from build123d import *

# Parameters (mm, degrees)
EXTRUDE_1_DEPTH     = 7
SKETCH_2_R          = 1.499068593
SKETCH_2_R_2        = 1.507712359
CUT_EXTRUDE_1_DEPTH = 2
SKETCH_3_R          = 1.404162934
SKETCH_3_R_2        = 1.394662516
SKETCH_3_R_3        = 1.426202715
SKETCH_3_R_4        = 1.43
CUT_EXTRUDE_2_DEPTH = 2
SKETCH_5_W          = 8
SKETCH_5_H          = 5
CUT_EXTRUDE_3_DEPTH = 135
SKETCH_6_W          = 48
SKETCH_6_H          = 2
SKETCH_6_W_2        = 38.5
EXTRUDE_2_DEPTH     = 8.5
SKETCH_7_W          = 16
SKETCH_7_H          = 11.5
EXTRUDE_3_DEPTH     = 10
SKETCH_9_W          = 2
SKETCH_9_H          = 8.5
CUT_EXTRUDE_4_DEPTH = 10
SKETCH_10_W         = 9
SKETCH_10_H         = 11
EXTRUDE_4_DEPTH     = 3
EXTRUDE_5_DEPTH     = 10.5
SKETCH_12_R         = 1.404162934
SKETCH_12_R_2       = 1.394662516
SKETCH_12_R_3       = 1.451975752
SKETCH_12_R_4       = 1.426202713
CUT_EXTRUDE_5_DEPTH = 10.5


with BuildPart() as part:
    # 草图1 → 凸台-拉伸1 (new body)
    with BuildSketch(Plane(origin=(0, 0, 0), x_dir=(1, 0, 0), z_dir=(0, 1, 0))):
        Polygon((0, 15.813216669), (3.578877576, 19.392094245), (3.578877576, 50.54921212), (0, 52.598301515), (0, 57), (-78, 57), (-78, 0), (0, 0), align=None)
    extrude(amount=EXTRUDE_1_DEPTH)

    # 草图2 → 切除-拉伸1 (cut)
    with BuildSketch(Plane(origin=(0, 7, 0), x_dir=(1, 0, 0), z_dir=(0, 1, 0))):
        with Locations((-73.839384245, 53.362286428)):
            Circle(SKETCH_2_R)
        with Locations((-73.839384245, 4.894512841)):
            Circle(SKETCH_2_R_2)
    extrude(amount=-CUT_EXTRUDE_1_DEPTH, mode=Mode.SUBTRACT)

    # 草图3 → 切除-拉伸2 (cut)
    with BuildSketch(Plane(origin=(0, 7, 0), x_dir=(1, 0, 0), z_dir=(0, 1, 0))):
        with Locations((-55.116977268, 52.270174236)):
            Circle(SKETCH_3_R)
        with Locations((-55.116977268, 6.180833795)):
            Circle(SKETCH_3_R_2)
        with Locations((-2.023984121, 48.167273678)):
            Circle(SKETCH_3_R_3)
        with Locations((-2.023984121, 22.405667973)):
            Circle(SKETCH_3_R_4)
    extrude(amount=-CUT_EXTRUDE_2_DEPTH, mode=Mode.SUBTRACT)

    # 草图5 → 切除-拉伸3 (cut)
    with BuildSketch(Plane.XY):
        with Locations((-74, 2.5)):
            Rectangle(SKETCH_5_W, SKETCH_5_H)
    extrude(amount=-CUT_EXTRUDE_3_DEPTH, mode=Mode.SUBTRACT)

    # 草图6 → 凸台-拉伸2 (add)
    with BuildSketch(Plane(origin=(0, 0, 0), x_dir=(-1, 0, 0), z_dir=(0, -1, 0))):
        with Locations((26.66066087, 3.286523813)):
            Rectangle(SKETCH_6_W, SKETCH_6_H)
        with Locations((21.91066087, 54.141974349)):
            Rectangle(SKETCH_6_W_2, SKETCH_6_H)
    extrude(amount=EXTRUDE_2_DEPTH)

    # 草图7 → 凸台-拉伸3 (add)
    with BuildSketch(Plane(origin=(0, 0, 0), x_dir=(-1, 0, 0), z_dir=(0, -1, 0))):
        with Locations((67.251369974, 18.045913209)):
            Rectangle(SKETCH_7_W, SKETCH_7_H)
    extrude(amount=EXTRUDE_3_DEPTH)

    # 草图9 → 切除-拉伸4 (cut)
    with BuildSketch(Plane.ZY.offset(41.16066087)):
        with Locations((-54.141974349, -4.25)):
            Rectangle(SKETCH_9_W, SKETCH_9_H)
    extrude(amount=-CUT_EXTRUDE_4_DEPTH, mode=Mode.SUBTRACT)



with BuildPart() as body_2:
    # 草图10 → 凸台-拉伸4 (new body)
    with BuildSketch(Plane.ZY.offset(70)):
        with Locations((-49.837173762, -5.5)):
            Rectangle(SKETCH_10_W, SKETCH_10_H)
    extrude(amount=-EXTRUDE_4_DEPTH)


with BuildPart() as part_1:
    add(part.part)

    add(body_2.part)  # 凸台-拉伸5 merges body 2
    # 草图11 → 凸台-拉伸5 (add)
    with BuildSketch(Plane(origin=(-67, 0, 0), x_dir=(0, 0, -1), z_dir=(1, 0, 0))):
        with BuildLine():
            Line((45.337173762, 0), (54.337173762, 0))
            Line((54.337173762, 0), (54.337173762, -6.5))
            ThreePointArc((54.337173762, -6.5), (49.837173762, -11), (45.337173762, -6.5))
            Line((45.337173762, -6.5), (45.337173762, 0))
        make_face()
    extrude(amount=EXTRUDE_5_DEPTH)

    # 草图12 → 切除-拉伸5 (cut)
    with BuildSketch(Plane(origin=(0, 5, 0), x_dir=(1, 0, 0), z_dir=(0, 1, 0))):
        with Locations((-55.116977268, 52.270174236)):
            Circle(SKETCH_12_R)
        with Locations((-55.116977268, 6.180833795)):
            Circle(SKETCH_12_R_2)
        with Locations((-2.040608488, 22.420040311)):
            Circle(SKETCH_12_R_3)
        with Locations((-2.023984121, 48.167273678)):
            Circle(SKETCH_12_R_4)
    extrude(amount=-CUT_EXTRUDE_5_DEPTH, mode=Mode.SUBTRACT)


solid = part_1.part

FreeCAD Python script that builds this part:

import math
import FreeCAD as App
import Part
import Sketcher
Q = App.Units.Quantity

doc = App.newDocument("Part")
body = doc.addObject("PartDesign::Body", "Body")

sketch1 = body.newObject("Sketcher::SketchObject", "Sketch")
sketch1.AttachmentSupport = (doc.getObject("XZ_Plane"), [""])
sketch1.MapMode = "FlatFace"
sketch1.addGeometry(Part.LineSegment(App.Vector(0, -15.8, 0), App.Vector(3.6, -19.4, 0)), False)
sketch1.addGeometry(Part.LineSegment(App.Vector(3.6, -19.4, 0), App.Vector(3.6, -50.5, 0)), False)
sketch1.addGeometry(Part.LineSegment(App.Vector(3.6, -50.5, 0), App.Vector(0, -52.6, 0)), False)
sketch1.addGeometry(Part.LineSegment(App.Vector(0, -52.6, 0), App.Vector(0, -57, 0)), False)
sketch1.addGeometry(Part.LineSegment(App.Vector(0, -57, 0), App.Vector(-78, -57, 0)), False)
sketch1.addGeometry(Part.LineSegment(App.Vector(-78, -57, 0), App.Vector(-78, 0, 0)), False)
sketch1.addGeometry(Part.LineSegment(App.Vector(-78, 0, 0), App.Vector(0, 0, 0)), False)
sketch1.addGeometry(Part.LineSegment(App.Vector(0, 0, 0), App.Vector(0, -15.8, 0)), False)
sketch1.addConstraint(Sketcher.Constraint("Coincident", 0, 2, 1, 1))
sketch1.addConstraint(Sketcher.Constraint("Coincident", 1, 2, 2, 1))
sketch1.addConstraint(Sketcher.Constraint("Coincident", 2, 2, 3, 1))
sketch1.addConstraint(Sketcher.Constraint("Coincident", 3, 2, 4, 1))
sketch1.addConstraint(Sketcher.Constraint("Coincident", 4, 2, 5, 1))
sketch1.addConstraint(Sketcher.Constraint("Coincident", 5, 2, 6, 1))
sketch1.addConstraint(Sketcher.Constraint("Coincident", 6, 2, 7, 1))
sketch1.addConstraint(Sketcher.Constraint("Coincident", 7, 2, 0, 1))
sketch1.addConstraint(Sketcher.Constraint("Vertical", 1))
sketch1.addConstraint(Sketcher.Constraint("Vertical", 3))
sketch1.addConstraint(Sketcher.Constraint("Horizontal", 4))
sketch1.addConstraint(Sketcher.Constraint("Vertical", 5))
sketch1.addConstraint(Sketcher.Constraint("Horizontal", 6))
sketch1.addConstraint(Sketcher.Constraint("Vertical", 7))
sketch1.addConstraint(Sketcher.Constraint("Coincident", 6, 2, -1, 1))
sketch1.addConstraint(Sketcher.Constraint("PointOnObject", 2, 2, -2))
sketch1.addConstraint(Sketcher.Constraint("DistanceX", 4, 2, 4, 1, 78.0))
sketch1.addConstraint(Sketcher.Constraint("DistanceY", 5, 1, 5, 2, 57.0))
sketch1.addConstraint(Sketcher.Constraint("Angle", 0, Q("-45 deg")))
sketch1.addConstraint(Sketcher.Constraint("DistanceY", 3, 2, 3, 1, 4.401698))
sketch1.addConstraint(Sketcher.Constraint("Distance", 2, 4.12397))
sketch1.addConstraint(Sketcher.Constraint("DistanceY", 1, 2, 1, 1, 31.157118))
sketch1.addConstraint(Sketcher.Constraint("DistanceY", 7, 2, 7, 1, 15.813217))
pad1 = body.newObject("PartDesign::Pad", "Pad")
pad1.Profile = sketch1
pad1.Length = 7
pad1.Reversed = True

sketch2 = body.newObject("Sketcher::SketchObject", "Sketch001")
sketch2.AttachmentSupport = (doc.getObject("XZ_Plane"), [""])
sketch2.MapMode = "FlatFace"
sketch2.AttachmentOffset = App.Placement(App.Vector(0, 0, -7), App.Rotation())
sketch2.addGeometry(Part.Circle(App.Vector(-73.8, -53.4, 0), App.Vector(0, 0, 1), 1.5), False)
sketch2.addGeometry(Part.Circle(App.Vector(-73.8, -4.9, 0), App.Vector(0, 0, 1), 1.5), False)
sketch2.addConstraint(Sketcher.Constraint("Vertical", 0, 3, 1, 3))
sketch2.addConstraint(Sketcher.Constraint("Diameter", 0, 2.998137))
sketch2.addConstraint(Sketcher.Constraint("Diameter", 1, 3.015425))
sketch2.addConstraint(Sketcher.Constraint("DistanceX", 0, 3, -1, 1, 73.839384))
sketch2.addConstraint(Sketcher.Constraint("DistanceY", 0, 3, -1, 1, 53.362286))
sketch2.addConstraint(Sketcher.Constraint("DistanceY", 1, 3, -1, 1, 4.894513))
pocket1 = body.newObject("PartDesign::Pocket", "Pocket")
pocket1.Profile = sketch2
pocket1.Length = 2
pocket1.Reversed = True

sketch3 = body.newObject("Sketcher::SketchObject", "Sketch002")
sketch3.AttachmentSupport = (doc.getObject("XZ_Plane"), [""])
sketch3.MapMode = "FlatFace"
sketch3.AttachmentOffset = App.Placement(App.Vector(0, 0, -7), App.Rotation())
sketch3.addGeometry(Part.Circle(App.Vector(-55.1, -52.3, 0), App.Vector(0, 0, 1), 1.4), False)
sketch3.addGeometry(Part.Circle(App.Vector(-55.1, -6.2, 0), App.Vector(0, 0, 1), 1.4), False)
sketch3.addGeometry(Part.Circle(App.Vector(-2, -48.2, 0), App.Vector(0, 0, 1), 1.4), False)
sketch3.addGeometry(Part.Circle(App.Vector(-2, -22.4, 0), App.Vector(0, 0, 1), 1.4), False)
sketch3.addConstraint(Sketcher.Constraint("Vertical", 0, 3, 1, 3))
sketch3.addConstraint(Sketcher.Constraint("Vertical", 2, 3, 3, 3))
sketch3.addConstraint(Sketcher.Constraint("Diameter", 3, 2.86))
sketch3.addConstraint(Sketcher.Constraint("Diameter", 0, 2.808326))
sketch3.addConstraint(Sketcher.Constraint("Diameter", 1, 2.789325))
sketch3.addConstraint(Sketcher.Constraint("Diameter", 2, 2.852405))
sketch3.addConstraint(Sketcher.Constraint("DistanceY", 0, 3, 2, 3, 4.102901))
sketch3.addConstraint(Sketcher.Constraint("DistanceY", 0, 3, 1, 3, 46.08934))
sketch3.addConstraint(Sketcher.Constraint("DistanceX", 0, 3, -1, 1, 55.116977))
sketch3.addConstraint(Sketcher.Constraint("DistanceY", 0, 3, -1, 1, 52.270174))
sketch3.addConstraint(Sketcher.Constraint("DistanceX", 2, 3, -1, 1, 2.023984))
sketch3.addConstraint(Sketcher.Constraint("DistanceY", 3, 3, -1, 1, 22.405668))
pocket2 = body.newObject("PartDesign::Pocket", "Pocket001")
pocket2.Profile = sketch3
pocket2.Length = 2
pocket2.Reversed = True

sketch4 = body.newObject("Sketcher::SketchObject", "Sketch003")
sketch4.AttachmentSupport = (doc.getObject("XY_Plane"), [""])
sketch4.MapMode = "FlatFace"
sketch4.addGeometry(Part.LineSegment(App.Vector(-78, 5, 0), App.Vector(-78, 0, 0)), False)
sketch4.addGeometry(Part.LineSegment(App.Vector(-78, 0, 0), App.Vector(-70, 0, 0)), False)
sketch4.addGeometry(Part.LineSegment(App.Vector(-70, 0, 0), App.Vector(-70, 5, 0)), False)
sketch4.addGeometry(Part.LineSegment(App.Vector(-70, 5, 0), App.Vector(-78, 5, 0)), False)
sketch4.addConstraint(Sketcher.Constraint("Coincident", 0, 2, 1, 1))
sketch4.addConstraint(Sketcher.Constraint("Coincident", 1, 2, 2, 1))
sketch4.addConstraint(Sketcher.Constraint("Coincident", 2, 2, 3, 1))
sketch4.addConstraint(Sketcher.Constraint("Coincident", 3, 2, 0, 1))
sketch4.addConstraint(Sketcher.Constraint("Vertical", 0))
sketch4.addConstraint(Sketcher.Constraint("Horizontal", 1))
sketch4.addConstraint(Sketcher.Constraint("Vertical", 2))
sketch4.addConstraint(Sketcher.Constraint("Horizontal", 3))
sketch4.addConstraint(Sketcher.Constraint("PointOnObject", 0, 2, -1))
sketch4.addConstraint(Sketcher.Constraint("DistanceX", 1, 1, 1, 2, 8.0))
sketch4.addConstraint(Sketcher.Constraint("DistanceY", 0, 2, 0, 1, 5.0))
sketch4.addConstraint(Sketcher.Constraint("DistanceX", 0, 2, -1, 1, 78.0))
pocket3 = body.newObject("PartDesign::Pocket", "Pocket002")
pocket3.Profile = sketch4
pocket3.Length = 135

sketch5 = body.newObject("Sketcher::SketchObject", "Sketch004")
sketch5.AttachmentSupport = (doc.getObject("XZ_Plane"), [""])
sketch5.MapMode = "FlatFace"
sketch5.addGeometry(Part.LineSegment(App.Vector(-2.7, -4.3, 0), App.Vector(-2.7, -2.3, 0)), False)
sketch5.addGeometry(Part.LineSegment(App.Vector(-2.7, -2.3, 0), App.Vector(-50.7, -2.3, 0)), False)
sketch5.addGeometry(Part.LineSegment(App.Vector(-50.7, -2.3, 0), App.Vector(-50.7, -4.3, 0)), False)
sketch5.addGeometry(Part.LineSegment(App.Vector(-50.7, -4.3, 0), App.Vector(-2.7, -4.3, 0)), False)
sketch5.addGeometry(Part.LineSegment(App.Vector(-2.7, -55.1, 0), App.Vector(-2.7, -53.1, 0)), False)
sketch5.addGeometry(Part.LineSegment(App.Vector(-2.7, -53.1, 0), App.Vector(-41.2, -53.1, 0)), False)
sketch5.addGeometry(Part.LineSegment(App.Vector(-41.2, -53.1, 0), App.Vector(-41.2, -55.1, 0)), False)
sketch5.addGeometry(Part.LineSegment(App.Vector(-41.2, -55.1, 0), App.Vector(-2.7, -55.1, 0)), False)
sketch5.addConstraint(Sketcher.Constraint("Coincident", 0, 2, 1, 1))
sketch5.addConstraint(Sketcher.Constraint("Coincident", 1, 2, 2, 1))
sketch5.addConstraint(Sketcher.Constraint("Coincident", 2, 2, 3, 1))
sketch5.addConstraint(Sketcher.Constraint("Coincident", 3, 2, 0, 1))
sketch5.addConstraint(Sketcher.Constraint("Coincident", 4, 2, 5, 1))
sketch5.addConstraint(Sketcher.Constraint("Coincident", 5, 2, 6, 1))
sketch5.addConstraint(Sketcher.Constraint("Coincident", 6, 2, 7, 1))
sketch5.addConstraint(Sketcher.Constraint("Coincident", 7, 2, 4, 1))
sketch5.addConstraint(Sketcher.Constraint("Vertical", 0))
sketch5.addConstraint(Sketcher.Constraint("Horizontal", 1))
sketch5.addConstraint(Sketcher.Constraint("Vertical", 2))
sketch5.addConstraint(Sketcher.Constraint("Horizontal", 3))
sketch5.addConstraint(Sketcher.Constraint("Vertical", 4))
sketch5.addConstraint(Sketcher.Constraint("Horizontal", 5))
sketch5.addConstraint(Sketcher.Constraint("Vertical", 6))
sketch5.addConstraint(Sketcher.Constraint("Horizontal", 7))
sketch5.addConstraint(Sketcher.Constraint("Vertical", 3, 2, 4, 2))
sketch5.addConstraint(Sketcher.Constraint("Equal", 2, 4))
sketch5.addConstraint(Sketcher.Constraint("DistanceX", 1, 2, 1, 1, 48.0))
sketch5.addConstraint(Sketcher.Constraint("DistanceY", 0, 1, 0, 2, 2.0))
sketch5.addConstraint(Sketcher.Constraint("DistanceX", 5, 2, 5, 1, 38.5))
sketch5.addConstraint(Sketcher.Constraint("DistanceX", 0, 2, -1, 1, 2.660661))
sketch5.addConstraint(Sketcher.Constraint("DistanceY", 4, 2, 3, 2, 48.855451))
sketch5.addConstraint(Sketcher.Constraint("DistanceY", 0, 2, -1, 1, 2.286524))
pad2 = body.newObject("PartDesign::Pad", "Pad001")
pad2.Profile = sketch5
pad2.Length = 8.5

sketch6 = body.newObject("Sketcher::SketchObject", "Sketch005")
sketch6.AttachmentSupport = (doc.getObject("XZ_Plane"), [""])
sketch6.MapMode = "FlatFace"
sketch6.addGeometry(Part.LineSegment(App.Vector(-59, -24, 0), App.Vector(-59, -12, 0)), False)
sketch6.addGeometry(Part.LineSegment(App.Vector(-59, -12, 0), App.Vector(-75, -12, 0)), False)
sketch6.addGeometry(Part.LineSegment(App.Vector(-75, -12, 0), App.Vector(-75, -24, 0)), False)
sketch6.addGeometry(Part.LineSegment(App.Vector(-75, -24, 0), App.Vector(-59, -24, 0)), False)
sketch6.addConstraint(Sketcher.Constraint("Coincident", 0, 2, 1, 1))
sketch6.addConstraint(Sketcher.Constraint("Coincident", 1, 2, 2, 1))
sketch6.addConstraint(Sketcher.Constraint("Coincident", 2, 2, 3, 1))
sketch6.addConstraint(Sketcher.Constraint("Coincident", 3, 2, 0, 1))
sketch6.addConstraint(Sketcher.Constraint("Vertical", 0))
sketch6.addConstraint(Sketcher.Constraint("Horizontal", 1))
sketch6.addConstraint(Sketcher.Constraint("Vertical", 2))
sketch6.addConstraint(Sketcher.Constraint("Horizontal", 3))
sketch6.addConstraint(Sketcher.Constraint("DistanceX", 1, 2, 1, 1, 16.0))
sketch6.addConstraint(Sketcher.Constraint("DistanceY", 0, 1, 0, 2, 11.5))
sketch6.addConstraint(Sketcher.Constraint("DistanceX", 0, 2, -1, 1, 59.25137))
sketch6.addConstraint(Sketcher.Constraint("DistanceY", 0, 2, -1, 1, 12.295913))
pad3 = body.newObject("PartDesign::Pad", "Pad002")
pad3.Profile = sketch6
pad3.Length = 10

sketch7 = body.newObject("Sketcher::SketchObject", "Sketch006")
sketch7.AttachmentSupport = (doc.getObject("YZ_Plane"), [""])
sketch7.MapMode = "FlatFace"
sketch7.AttachmentOffset = App.Placement(App.Vector(0, 0, -41.160661), App.Rotation())
sketch7.addGeometry(Part.LineSegment(App.Vector(0, -55.1, 0), App.Vector(-8.5, -55.1, 0)), False)
sketch7.addGeometry(Part.LineSegment(App.Vector(-8.5, -55.1, 0), App.Vector(-8.5, -53.1, 0)), False)
sketch7.addGeometry(Part.LineSegment(App.Vector(-8.5, -53.1, 0), App.Vector(0, -53.1, 0)), False)
sketch7.addGeometry(Part.LineSegment(App.Vector(0, -53.1, 0), App.Vector(0, -55.1, 0)), False)
sketch7.addConstraint(Sketcher.Constraint("Coincident", 0, 2, 1, 1))
sketch7.addConstraint(Sketcher.Constraint("Coincident", 1, 2, 2, 1))
sketch7.addConstraint(Sketcher.Constraint("Coincident", 2, 2, 3, 1))
sketch7.addConstraint(Sketcher.Constraint("Coincident", 3, 2, 0, 1))
sketch7.addConstraint(Sketcher.Constraint("Horizontal", 0))
sketch7.addConstraint(Sketcher.Constraint("Vertical", 1))
sketch7.addConstraint(Sketcher.Constraint("Horizontal", 2))
sketch7.addConstraint(Sketcher.Constraint("Vertical", 3))
sketch7.addConstraint(Sketcher.Constraint("PointOnObject", 2, 2, -2))
sketch7.addConstraint(Sketcher.Constraint("DistanceY", 1, 1, 1, 2, 2.0))
sketch7.addConstraint(Sketcher.Constraint("DistanceX", 0, 2, 0, 1, 8.5))
sketch7.addConstraint(Sketcher.Constraint("DistanceY", 0, 2, -1, 1, 55.141974))
pocket4 = body.newObject("PartDesign::Pocket", "Pocket003")
pocket4.Profile = sketch7
pocket4.Length = 10
pocket4.Reversed = True
body2 = doc.addObject("PartDesign::Body", "Body001")

sketch8 = body2.newObject("Sketcher::SketchObject", "Sketch007")
sketch8.AttachmentSupport = (doc.getObject("YZ_Plane001"), [""])
sketch8.MapMode = "FlatFace"
sketch8.AttachmentOffset = App.Placement(App.Vector(0, 0, -70), App.Rotation())
sketch8.addGeometry(Part.LineSegment(App.Vector(0, -54, 0), App.Vector(-11, -54, 0)), False)
sketch8.addGeometry(Part.LineSegment(App.Vector(-11, -54, 0), App.Vector(-11, -45, 0)), False)
sketch8.addGeometry(Part.LineSegment(App.Vector(-11, -45, 0), App.Vector(0, -45, 0)), False)
sketch8.addGeometry(Part.LineSegment(App.Vector(0, -45, 0), App.Vector(0, -54, 0)), False)
sketch8.addConstraint(Sketcher.Constraint("Coincident", 0, 2, 1, 1))
sketch8.addConstraint(Sketcher.Constraint("Coincident", 1, 2, 2, 1))
sketch8.addConstraint(Sketcher.Constraint("Coincident", 2, 2, 3, 1))
sketch8.addConstraint(Sketcher.Constraint("Coincident", 3, 2, 0, 1))
sketch8.addConstraint(Sketcher.Constraint("Horizontal", 0))
sketch8.addConstraint(Sketcher.Constraint("Vertical", 1))
sketch8.addConstraint(Sketcher.Constraint("Horizontal", 2))
sketch8.addConstraint(Sketcher.Constraint("Vertical", 3))
sketch8.addConstraint(Sketcher.Constraint("PointOnObject", 2, 2, -2))
sketch8.addConstraint(Sketcher.Constraint("DistanceX", 0, 2, 0, 1, 11.0))
sketch8.addConstraint(Sketcher.Constraint("DistanceY", 1, 1, 1, 2, 9.0))
sketch8.addConstraint(Sketcher.Constraint("DistanceY", 0, 2, -1, 1, 54.337174))
pad4 = body2.newObject("PartDesign::Pad", "Pad003")
pad4.Profile = sketch8
pad4.Length = 3
doc.recompute()

boolean = body.newObject("PartDesign::Boolean", "Boolean")
boolean.Type = "Fuse"
boolean.addObjects([body2])

sketch9 = body.newObject("Sketcher::SketchObject", "Sketch008")
sketch9.AttachmentSupport = (doc.getObject("YZ_Plane"), [""])
sketch9.MapMode = "FlatFace"
sketch9.AttachmentOffset = App.Placement(App.Vector(0, 0, -67), App.Rotation())
sketch9.addGeometry(Part.LineSegment(App.Vector(0, -54.3, 0), App.Vector(0, -45.3, 0)), False)
sketch9.addGeometry(Part.LineSegment(App.Vector(0, -45.3, 0), App.Vector(-6.5, -45.3, 0)), False)
sketch9.addGeometry(Part.ArcOfCircle(Part.Circle(App.Vector(-6.5, -49.8, 0), App.Vector(0, 0, 1), 4.5), math.radians(90), math.radians(270)), False)
sketch9.addGeometry(Part.LineSegment(App.Vector(-6.5, -54.3, 0), App.Vector(0, -54.3, 0)), False)
sketch9.addConstraint(Sketcher.Constraint("Coincident", 0, 2, 1, 1))
sketch9.addConstraint(Sketcher.Constraint("Tangent", 1, 2, 2, 1))
sketch9.addConstraint(Sketcher.Constraint("Tangent", 2, 2, 3, 1))
sketch9.addConstraint(Sketcher.Constraint("Coincident", 3, 2, 0, 1))
sketch9.addConstraint(Sketcher.Constraint("Vertical", 0))
sketch9.addConstraint(Sketcher.Constraint("Horizontal", 1))
sketch9.addConstraint(Sketcher.Constraint("Horizontal", 3))
sketch9.addConstraint(Sketcher.Constraint("PointOnObject", 0, 2, -2))
sketch9.addConstraint(Sketcher.Constraint("Radius", 2, 4.5))
sketch9.addConstraint(Sketcher.Constraint("DistanceX", 1, 2, 1, 1, 6.5))
sketch9.addConstraint(Sketcher.Constraint("DistanceY", 2, 3, -1, 1, 49.837174))
pad5 = body.newObject("PartDesign::Pad", "Pad004")
pad5.Profile = sketch9
pad5.Length = 10.5

sketch10 = body.newObject("Sketcher::SketchObject", "Sketch009")
sketch10.AttachmentSupport = (doc.getObject("XZ_Plane"), [""])
sketch10.MapMode = "FlatFace"
sketch10.AttachmentOffset = App.Placement(App.Vector(0, 0, -5), App.Rotation())
sketch10.addGeometry(Part.Circle(App.Vector(-55.1, -52.3, 0), App.Vector(0, 0, 1), 1.4), False)
sketch10.addGeometry(Part.Circle(App.Vector(-55.1, -6.2, 0), App.Vector(0, 0, 1), 1.4), False)
sketch10.addGeometry(Part.Circle(App.Vector(-2, -22.4, 0), App.Vector(0, 0, 1), 1.5), False)
sketch10.addGeometry(Part.Circle(App.Vector(-2, -48.2, 0), App.Vector(0, 0, 1), 1.4), False)
sketch10.addConstraint(Sketcher.Constraint("Vertical", 0, 3, 1, 3))
sketch10.addConstraint(Sketcher.Constraint("Diameter", 2, 2.903952))
sketch10.addConstraint(Sketcher.Constraint("Diameter", 0, 2.808326))
sketch10.addConstraint(Sketcher.Constraint("Diameter", 1, 2.789325))
sketch10.addConstraint(Sketcher.Constraint("Diameter", 3, 2.852405))
sketch10.addConstraint(Sketcher.Constraint("DistanceY", 0, 3, 3, 3, 4.102901))
sketch10.addConstraint(Sketcher.Constraint("DistanceX", 2, 3, -1, 1, 2.040608))
sketch10.addConstraint(Sketcher.Constraint("DistanceY", 2, 3, -1, 1, 22.42004))
sketch10.addConstraint(Sketcher.Constraint("DistanceY", 0, 3, 1, 3, 46.08934))
sketch10.addConstraint(Sketcher.Constraint("DistanceX", 1, 3, 2, 3, 53.076369))
sketch10.addConstraint(Sketcher.Constraint("DistanceY", 0, 3, -1, 1, 52.270174))
sketch10.addConstraint(Sketcher.Constraint("DistanceX", 3, 3, -1, 1, 2.023984))
pocket5 = body.newObject("PartDesign::Pocket", "Pocket004")
pocket5.Profile = sketch10
pocket5.Length = 10.5
pocket5.Reversed = True

doc.recompute()
